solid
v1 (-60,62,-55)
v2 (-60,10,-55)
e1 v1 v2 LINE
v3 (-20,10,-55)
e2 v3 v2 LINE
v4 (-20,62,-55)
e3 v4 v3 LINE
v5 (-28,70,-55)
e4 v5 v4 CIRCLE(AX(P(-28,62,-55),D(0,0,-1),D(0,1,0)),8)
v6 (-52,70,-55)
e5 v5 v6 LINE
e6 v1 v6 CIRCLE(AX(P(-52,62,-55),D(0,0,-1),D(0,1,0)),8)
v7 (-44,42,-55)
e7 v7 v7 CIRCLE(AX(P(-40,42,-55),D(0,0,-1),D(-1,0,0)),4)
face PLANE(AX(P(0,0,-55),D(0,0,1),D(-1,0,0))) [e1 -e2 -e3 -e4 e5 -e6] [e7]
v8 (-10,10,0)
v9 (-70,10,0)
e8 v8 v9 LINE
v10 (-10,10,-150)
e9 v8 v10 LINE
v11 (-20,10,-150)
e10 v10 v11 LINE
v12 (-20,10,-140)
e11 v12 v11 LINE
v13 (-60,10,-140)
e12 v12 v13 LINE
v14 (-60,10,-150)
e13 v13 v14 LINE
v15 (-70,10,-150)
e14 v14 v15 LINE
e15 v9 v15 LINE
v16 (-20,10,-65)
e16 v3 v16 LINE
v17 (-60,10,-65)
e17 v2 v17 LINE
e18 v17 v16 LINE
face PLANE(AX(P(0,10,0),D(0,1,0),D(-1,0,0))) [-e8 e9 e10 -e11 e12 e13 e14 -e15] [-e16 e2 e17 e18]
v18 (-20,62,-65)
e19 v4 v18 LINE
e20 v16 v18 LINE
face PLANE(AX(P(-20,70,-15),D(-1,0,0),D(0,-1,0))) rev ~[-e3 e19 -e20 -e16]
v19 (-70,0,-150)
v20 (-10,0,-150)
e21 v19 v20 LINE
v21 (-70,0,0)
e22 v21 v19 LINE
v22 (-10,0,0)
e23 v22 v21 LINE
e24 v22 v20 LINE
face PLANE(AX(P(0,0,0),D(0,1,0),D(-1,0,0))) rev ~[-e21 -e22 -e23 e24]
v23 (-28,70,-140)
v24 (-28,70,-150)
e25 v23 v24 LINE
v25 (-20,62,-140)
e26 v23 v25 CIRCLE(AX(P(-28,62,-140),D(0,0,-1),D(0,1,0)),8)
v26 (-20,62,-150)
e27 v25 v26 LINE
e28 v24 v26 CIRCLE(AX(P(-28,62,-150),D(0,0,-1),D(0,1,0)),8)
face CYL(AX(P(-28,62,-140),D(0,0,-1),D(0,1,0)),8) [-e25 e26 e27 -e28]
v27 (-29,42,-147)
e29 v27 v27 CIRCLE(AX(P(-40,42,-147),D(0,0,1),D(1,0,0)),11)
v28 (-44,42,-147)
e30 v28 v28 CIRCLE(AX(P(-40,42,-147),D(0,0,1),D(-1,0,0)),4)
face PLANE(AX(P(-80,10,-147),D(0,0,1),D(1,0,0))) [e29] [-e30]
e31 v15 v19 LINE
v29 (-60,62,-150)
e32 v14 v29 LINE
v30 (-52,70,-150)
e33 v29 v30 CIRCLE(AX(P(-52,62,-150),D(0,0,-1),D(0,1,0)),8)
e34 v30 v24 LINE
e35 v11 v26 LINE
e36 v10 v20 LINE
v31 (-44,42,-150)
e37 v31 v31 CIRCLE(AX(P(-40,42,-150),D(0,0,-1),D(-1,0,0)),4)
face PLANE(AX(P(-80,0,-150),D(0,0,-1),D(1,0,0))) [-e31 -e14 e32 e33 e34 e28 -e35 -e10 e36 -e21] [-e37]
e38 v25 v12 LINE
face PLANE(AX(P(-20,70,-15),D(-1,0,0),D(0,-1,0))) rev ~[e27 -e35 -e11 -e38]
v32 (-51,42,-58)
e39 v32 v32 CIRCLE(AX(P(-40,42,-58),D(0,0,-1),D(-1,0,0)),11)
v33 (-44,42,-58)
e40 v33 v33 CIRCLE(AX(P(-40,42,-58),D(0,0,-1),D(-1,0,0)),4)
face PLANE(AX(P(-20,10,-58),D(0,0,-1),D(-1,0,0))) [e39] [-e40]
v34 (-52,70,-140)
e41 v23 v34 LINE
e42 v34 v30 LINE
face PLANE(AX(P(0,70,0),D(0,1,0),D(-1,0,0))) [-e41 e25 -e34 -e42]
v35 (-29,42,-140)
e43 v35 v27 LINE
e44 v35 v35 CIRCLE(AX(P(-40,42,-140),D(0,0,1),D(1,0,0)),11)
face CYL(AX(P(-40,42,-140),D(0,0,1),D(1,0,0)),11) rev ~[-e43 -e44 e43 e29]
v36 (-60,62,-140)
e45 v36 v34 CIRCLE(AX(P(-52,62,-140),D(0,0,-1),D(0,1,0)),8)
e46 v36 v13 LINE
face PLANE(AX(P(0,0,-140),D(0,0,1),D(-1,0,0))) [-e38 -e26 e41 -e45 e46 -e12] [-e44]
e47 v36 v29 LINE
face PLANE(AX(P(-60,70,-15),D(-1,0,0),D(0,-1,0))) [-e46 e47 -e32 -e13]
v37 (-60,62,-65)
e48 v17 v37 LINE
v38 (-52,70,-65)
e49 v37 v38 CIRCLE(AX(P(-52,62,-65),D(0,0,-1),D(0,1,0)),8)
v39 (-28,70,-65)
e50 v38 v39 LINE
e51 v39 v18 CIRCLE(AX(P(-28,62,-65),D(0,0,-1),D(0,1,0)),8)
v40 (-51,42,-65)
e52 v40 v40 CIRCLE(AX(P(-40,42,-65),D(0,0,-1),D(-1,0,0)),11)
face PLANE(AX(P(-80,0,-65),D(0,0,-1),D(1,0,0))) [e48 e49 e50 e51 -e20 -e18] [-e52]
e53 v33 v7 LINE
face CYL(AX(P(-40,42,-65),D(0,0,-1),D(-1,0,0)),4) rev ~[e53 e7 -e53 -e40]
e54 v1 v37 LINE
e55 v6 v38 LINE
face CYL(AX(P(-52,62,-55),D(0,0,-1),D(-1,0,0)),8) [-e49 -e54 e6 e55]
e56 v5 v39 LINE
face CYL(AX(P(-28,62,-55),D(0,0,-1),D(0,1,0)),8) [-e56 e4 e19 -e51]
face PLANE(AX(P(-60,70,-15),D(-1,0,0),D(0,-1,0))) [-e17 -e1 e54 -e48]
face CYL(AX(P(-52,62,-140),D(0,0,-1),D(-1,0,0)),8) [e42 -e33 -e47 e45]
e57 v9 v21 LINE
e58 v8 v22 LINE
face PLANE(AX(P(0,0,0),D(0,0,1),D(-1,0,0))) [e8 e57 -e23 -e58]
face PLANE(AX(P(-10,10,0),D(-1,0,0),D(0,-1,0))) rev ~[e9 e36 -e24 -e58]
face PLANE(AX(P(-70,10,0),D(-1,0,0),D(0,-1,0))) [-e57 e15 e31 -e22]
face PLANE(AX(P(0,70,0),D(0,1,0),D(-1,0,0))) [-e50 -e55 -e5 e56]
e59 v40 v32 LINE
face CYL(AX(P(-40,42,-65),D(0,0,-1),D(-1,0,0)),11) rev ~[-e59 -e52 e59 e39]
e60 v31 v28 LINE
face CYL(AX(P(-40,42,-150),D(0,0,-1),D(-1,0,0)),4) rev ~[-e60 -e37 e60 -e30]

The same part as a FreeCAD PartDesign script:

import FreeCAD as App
import Part
import Sketcher
from FreeCAD import Vector


def edges_at(feature, points):
    """Names of the edges that pass closest to the given points."""
    edges = feature.Shape.Edges
    near = lambda p: min(range(len(edges)), key=lambda i: edges[i].distToShape(Part.Vertex(*p))[0])
    return sorted({f"Edge{near(p) + 1}" for p in points})

doc = App.newDocument("Part")
body = doc.addObject("PartDesign::Body", "Body")
body.AllowCompound = True

# Sketch on XZ plane
sketch1 = body.newObject("Sketcher::SketchObject", "Sketch")
sketch1.AttachmentSupport = (doc.getObject("XZ_Plane"), [""])
sketch1.MapMode = "FlatFace"
sketch1.addGeometry(Part.LineSegment(Vector(-80, 0, 0), Vector(0, 0, 0)), False)
sketch1.addGeometry(Part.LineSegment(Vector(0, 0, 0), Vector(0, -15, 0)), False)
sketch1.addGeometry(Part.LineSegment(Vector(0, -15, 0), Vector(-80, -15, 0)), False)
sketch1.addGeometry(Part.LineSegment(Vector(-80, -15, 0), Vector(-80, 0, 0)), False)
sketch1.addGeometry(Part.LineSegment(Vector(-80, -25, 0), Vector(0, -25, 0)), False)
sketch1.addGeometry(Part.LineSegment(Vector(0, -25, 0), Vector(0, -55, 0)), False)
sketch1.addGeometry(Part.LineSegment(Vector(0, -55, 0), Vector(-80, -55, 0)), False)
sketch1.addGeometry(Part.LineSegment(Vector(-80, -55, 0), Vector(-80, -25, 0)), False)
sketch1.addGeometry(Part.LineSegment(Vector(-80, -65, 0), Vector(0, -65, 0)), False)
sketch1.addGeometry(Part.LineSegment(Vector(0, -65, 0), Vector(0, -140, 0)), False)
sketch1.addGeometry(Part.LineSegment(Vector(0, -140, 0), Vector(-80, -140, 0)), False)
sketch1.addGeometry(Part.LineSegment(Vector(-80, -140, 0), Vector(-80, -65, 0)), False)
sketch1.addConstraint(Sketcher.Constraint("Coincident", 0, 2, 1, 1))
sketch1.addConstraint(Sketcher.Constraint("Coincident", 1, 2, 2, 1))
sketch1.addConstraint(Sketcher.Constraint("Coincident", 2, 2, 3, 1))
sketch1.addConstraint(Sketcher.Constraint("Coincident", 3, 2, 0, 1))
sketch1.addConstraint(Sketcher.Constraint("Coincident", 4, 2, 5, 1))
sketch1.addConstraint(Sketcher.Constraint("Coincident", 5, 2, 6, 1))
sketch1.addConstraint(Sketcher.Constraint("Coincident", 6, 2, 7, 1))
sketch1.addConstraint(Sketcher.Constraint("Coincident", 7, 2, 4, 1))
sketch1.addConstraint(Sketcher.Constraint("Coincident", 8, 2, 9, 1))
sketch1.addConstraint(Sketcher.Constraint("Coincident", 9, 2, 10, 1))
sketch1.addConstraint(Sketcher.Constraint("Coincident", 10, 2, 11, 1))
sketch1.addConstraint(Sketcher.Constraint("Coincident", 11, 2, 8, 1))
sketch1.addConstraint(Sketcher.Constraint("Horizontal", 0))
sketch1.addConstraint(Sketcher.Constraint("Vertical", 1))
sketch1.addConstraint(Sketcher.Constraint("Horizontal", 2))
sketch1.addConstraint(Sketcher.Constraint("Vertical", 3))
sketch1.addConstraint(Sketcher.Constraint("Horizontal", 4))
sketch1.addConstraint(Sketcher.Constraint("Vertical", 5))
sketch1.addConstraint(Sketcher.Constraint("Horizontal", 6))
sketch1.addConstraint(Sketcher.Constraint("Vertical", 7))
sketch1.addConstraint(Sketcher.Constraint("Horizontal", 8))
sketch1.addConstraint(Sketcher.Constraint("Vertical", 9))
sketch1.addConstraint(Sketcher.Constraint("Horizontal", 10))
sketch1.addConstraint(Sketcher.Constraint("Vertical", 11))
sketch1.addConstraint(Sketcher.Constraint("Coincident", 0, 2, -1, 1))
sketch1.addConstraint(Sketcher.Constraint("PointOnObject", 4, 2, -2))
sketch1.addConstraint(Sketcher.Constraint("PointOnObject", 8, 2, -2))
sketch1.addConstraint(Sketcher.Constraint("Vertical", 3, 2, 6, 2))
sketch1.addConstraint(Sketcher.Constraint("Vertical", 7, 2, 10, 2))
sketch1.addConstraint(Sketcher.Constraint("DistanceX", 0, 1, 0, 2, 80.0))
sketch1.addConstraint(Sketcher.Constraint("DistanceY", 5, 2, 5, 1, 30.0))
sketch1.addConstraint(Sketcher.Constraint("DistanceY", 9, 2, 9, 1, 75.0))
sketch1.addConstraint(Sketcher.Constraint("DistanceY", 4, 2, 1, 2, 10.0))
sketch1.addConstraint(Sketcher.Constraint("DistanceY", 8, 2, 5, 2, 10.0))
sketch1.addConstraint(Sketcher.Constraint("DistanceY", 1, 2, 1, 1, 15.0))
pad1 = body.newObject("PartDesign::Pad", "Pad")
pad1.Profile = sketch1
pad1.Length = 10
pad1.Reversed = True

# Sketch on XZ plane
sketch2 = body.newObject("Sketcher::SketchObject", "Sketch001")
sketch2.AttachmentSupport = (doc.getObject("XZ_Plane"), [""])
sketch2.MapMode = "FlatFace"
sketch2.addGeometry(Part.LineSegment(Vector(-80, -15, 0), Vector(0, -15, 0)), False)
sketch2.addGeometry(Part.LineSegment(Vector(0, -15, 0), Vector(0, -25, 0)), False)
sketch2.addGeometry(Part.LineSegment(Vector(0, -25, 0), Vector(-80, -25, 0)), False)
sketch2.addGeometry(Part.LineSegment(Vector(-80, -25, 0), Vector(-80, -15, 0)), False)
sketch2.addGeometry(Part.LineSegment(Vector(-80, -55, 0), Vector(0, -55, 0)), False)
sketch2.addGeometry(Part.LineSegment(Vector(0, -55, 0), Vector(0, -65, 0)), False)
sketch2.addGeometry(Part.LineSegment(Vector(0, -65, 0), Vector(-80, -65, 0)), False)
sketch2.addGeometry(Part.LineSegment(Vector(-80, -65, 0), Vector(-80, -55, 0)), False)
sketch2.addGeometry(Part.LineSegment(Vector(-80, -140, 0), Vector(0, -140, 0)), False)
sketch2.addGeometry(Part.LineSegment(Vector(0, -140, 0), Vector(0, -150, 0)), False)
sketch2.addGeometry(Part.LineSegment(Vector(0, -150, 0), Vector(-80, -150, 0)), False)
sketch2.addGeometry(Part.LineSegment(Vector(-80, -150, 0), Vector(-80, -140, 0)), False)
sketch2.addConstraint(Sketcher.Constraint("Coincident", 0, 2, 1, 1))
sketch2.addConstraint(Sketcher.Constraint("Coincident", 1, 2, 2, 1))
sketch2.addConstraint(Sketcher.Constraint("Coincident", 2, 2, 3, 1))
sketch2.addConstraint(Sketcher.Constraint("Coincident", 3, 2, 0, 1))
sketch2.addConstraint(Sketcher.Constraint("Coincident", 4, 2, 5, 1))
sketch2.addConstraint(Sketcher.Constraint("Coincident", 5, 2, 6, 1))
sketch2.addConstraint(Sketcher.Constraint("Coincident", 6, 2, 7, 1))
sketch2.addConstraint(Sketcher.Constraint("Coincident", 7, 2, 4, 1))
sketch2.addConstraint(Sketcher.Constraint("Coincident", 8, 2, 9, 1))
sketch2.addConstraint(Sketcher.Constraint("Coincident", 9, 2, 10, 1))
sketch2.addConstraint(Sketcher.Constraint("Coincident", 10, 2, 11, 1))
sketch2.addConstraint(Sketcher.Constraint("Coincident", 11, 2, 8, 1))
sketch2.addConstraint(Sketcher.Constraint("Horizontal", 0))
sketch2.addConstraint(Sketcher.Constraint("Vertical", 1))
sketch2.addConstraint(Sketcher.Constraint("Horizontal", 2))
sketch2.addConstraint(Sketcher.Constraint("Vertical", 3))
sketch2.addConstraint(Sketcher.Constraint("Horizontal", 4))
sketch2.addConstraint(Sketcher.Constraint("Vertical", 5))
sketch2.addConstraint(Sketcher.Constraint("Horizontal", 6))
sketch2.addConstraint(Sketcher.Constraint("Vertical", 7))
sketch2.addConstraint(Sketcher.Constraint("Horizontal", 8))
sketch2.addConstraint(Sketcher.Constraint("Vertical", 9))
sketch2.addConstraint(Sketcher.Constraint("Horizontal", 10))
sketch2.addConstraint(Sketcher.Constraint("Vertical", 11))
sketch2.addConstraint(Sketcher.Constraint("PointOnObject", 0, 2, -2))
sketch2.addConstraint(Sketcher.Constraint("PointOnObject", 4, 2, -2))
sketch2.addConstraint(Sketcher.Constraint("PointOnObject", 8, 2, -2))
sketch2.addConstraint(Sketcher.Constraint("Vertical", 3, 2, 6, 2))
sketch2.addConstraint(Sketcher.Constraint("Vertical", 7, 2, 10, 2))
sketch2.addConstraint(Sketcher.Constraint("Equal", 3, 5))
sketch2.addConstraint(Sketcher.Constraint("Equal", 7, 9))
sketch2.addConstraint(Sketcher.Constraint("DistanceX", 0, 1, 0, 2, 80.0))
sketch2.addConstraint(Sketcher.Constraint("DistanceY", 1, 2, 1, 1, 10.0))
sketch2.addConstraint(Sketcher.Constraint("DistanceY", 9, 2, -1, 1, 150.0))
sketch2.addConstraint(Sketcher.Constraint("DistanceY", 4, 2, 1, 2, 30.0))
sketch2.addConstraint(Sketcher.Constraint("DistanceY", 8, 2, 5, 2, 75.0))
pad2 = body.newObject("PartDesign::Pad", "Pad001")
pad2.Profile = sketch2
pad2.Length = 70
pad2.Reversed = True

# Sketch on XY plane
sketch3 = body.newObject("Sketcher::SketchObject", "Sketch002")
sketch3.AttachmentSupport = (doc.getObject("XY_Plane"), [""])
sketch3.MapMode = "FlatFace"
sketch3.AttachmentOffset = App.Placement(Vector(0, 0, -150), App.Rotation())
sketch3.addGeometry(Part.Circle(Vector(-40, 42, 0), Vector(0, 0, 1), 4), False)
sketch3.addConstraint(Sketcher.Constraint("Diameter", 0, 8.0))
sketch3.addConstraint(Sketcher.Constraint("DistanceX", 0, 3, -1, 1, 40.0))
sketch3.addConstraint(Sketcher.Constraint("DistanceY", -1, 1, 0, 3, 42.0))
pocket1 = body.newObject("PartDesign::Pocket", "Pocket")
pocket1.Profile = sketch3
pocket1.Length = 10
pocket1.Reversed = True

# Sketch on XY plane
sketch4 = body.newObject("Sketcher::SketchObject", "Sketch003")
sketch4.AttachmentSupport = (doc.getObject("XY_Plane"), [""])
sketch4.MapMode = "FlatFace"
sketch4.AttachmentOffset = App.Placement(Vector(0, 0, -15), App.Rotation())
sketch4.addGeometry(Part.Circle(Vector(-40, 42, 0), Vector(0, 0, 1), 4), False)
sketch4.addConstraint(Sketcher.Constraint("Diameter", 0, 8.0))
sketch4.addConstraint(Sketcher.Constraint("DistanceX", 0, 3, -1, 1, 40.0))
sketch4.addConstraint(Sketcher.Constraint("DistanceY", -1, 1, 0, 3, 42.0))
pocket2 = body.newObject("PartDesign::Pocket", "Pocket001")
pocket2.Profile = sketch4
pocket2.Length = 10

# Sketch on XY plane
sketch5 = body.newObject("Sketcher::SketchObject", "Sketch004")
sketch5.AttachmentSupport = (doc.getObject("XY_Plane"), [""])
sketch5.MapMode = "FlatFace"
sketch5.AttachmentOffset = App.Placement(Vector(0, 0, -15), App.Rotation())
sketch5.addGeometry(Part.Circle(Vector(-40, 42, 0), Vector(0, 0, 1), 12.5), False)
sketch5.addGeometry(Part.Circle(Vector(-40, 42, 0), Vector(0, 0, 1), 4), False)
sketch5.addConstraint(Sketcher.Constraint("Coincident", 1, 3, 0, 3))
sketch5.addConstraint(Sketcher.Constraint("Diameter", 0, 25.0))
sketch5.addConstraint(Sketcher.Constraint("Diameter", 1, 8.0))
sketch5.addConstraint(Sketcher.Constraint("DistanceX", 0, 3, -1, 1, 40.0))
sketch5.addConstraint(Sketcher.Constraint("DistanceY", -1, 1, 0, 3, 42.0))
pocket3 = body.newObject("PartDesign::Pocket", "Pocket002")
pocket3.Profile = sketch5
pocket3.Length = 8

# Sketch on XY plane
sketch6 = body.newObject("Sketcher::SketchObject", "Sketch005")
sketch6.AttachmentSupport = (doc.getObject("XY_Plane"), [""])
sketch6.MapMode = "FlatFace"
sketch6.AttachmentOffset = App.Placement(Vector(0, 0, -65), App.Rotation())
sketch6.addGeometry(Part.Circle(Vector(-40, 42, 0), Vector(0, 0, 1), 4), False)
sketch6.addConstraint(Sketcher.Constraint("Diameter", 0, 8.0))
sketch6.addConstraint(Sketcher.Constraint("DistanceX", 0, 3, -1, 1, 40.0))
sketch6.addConstraint(Sketcher.Constraint("DistanceY", -1, 1, 0, 3, 42.0))
pocket4 = body.newObject("PartDesign::Pocket", "Pocket003")
pocket4.Profile = sketch6
pocket4.Length = 10
pocket4.Reversed = True

# Sketch on XY plane
sketch7 = body.newObject("Sketcher::SketchObject", "Sketch006")
sketch7.AttachmentSupport = (doc.getObject("XY_Plane"), [""])
sketch7.MapMode = "FlatFace"
sketch7.AttachmentOffset = App.Placement(Vector(0, 0, -140), App.Rotation())
sketch7.addGeometry(Part.Circle(Vector(-40, 42, 0), Vector(0, 0, 1), 11), False)
sketch7.addGeometry(Part.Circle(Vector(-40, 42, 0), Vector(0, 0, 1), 4), False)
sketch7.addConstraint(Sketcher.Constraint("Coincident", 1, 3, 0, 3))
sketch7.addConstraint(Sketcher.Constraint("Diameter", 0, 22.0))
sketch7.addConstraint(Sketcher.Constraint("Diameter", 1, 8.0))
sketch7.addConstraint(Sketcher.Constraint("DistanceX", 0, 3, -1, 1, 40.0))
sketch7.addConstraint(Sketcher.Constraint("DistanceY", -1, 1, 0, 3, 42.0))
pocket5 = body.newObject("PartDesign::Pocket", "Pocket004")
pocket5.Profile = sketch7
pocket5.Length = 7

# Sketch on XY plane
sketch8 = body.newObject("Sketcher::SketchObject", "Sketch007")
sketch8.AttachmentSupport = (doc.getObject("XY_Plane"), [""])
sketch8.MapMode = "FlatFace"
sketch8.AttachmentOffset = App.Placement(Vector(0, 0, -15), App.Rotation())
sketch8.addGeometry(Part.LineSegment(Vector(-20, 70, 0), Vector(-20, 10, 0)), False)
sketch8.addGeometry(Part.LineSegment(Vector(-20, 10, 0), Vector(0, 10, 0)), False)
sketch8.addGeometry(Part.LineSegment(Vector(0, 10, 0), Vector(0, 70, 0)), False)
sketch8.addGeometry(Part.LineSegment(Vector(0, 70, 0), Vector(-20, 70, 0)), False)
sketch8.addGeometry(Part.LineSegment(Vector(-80, 70, 0), Vector(-80, 10, 0)), False)
sketch8.addGeometry(Part.LineSegment(Vector(-80, 10, 0), Vector(-60, 10, 0)), False)
sketch8.addGeometry(Part.LineSegment(Vector(-60, 10, 0), Vector(-60, 70, 0)), False)
sketch8.addGeometry(Part.LineSegment(Vector(-60, 70, 0), Vector(-80, 70, 0)), False)
sketch8.addConstraint(Sketcher.Constraint("Coincident", 0, 2, 1, 1))
sketch8.addConstraint(Sketcher.Constraint("Coincident", 1, 2, 2, 1))
sketch8.addConstraint(Sketcher.Constraint("Coincident", 2, 2, 3, 1))
sketch8.addConstraint(Sketcher.Constraint("Coincident", 3, 2, 0, 1))
sketch8.addConstraint(Sketcher.Constraint("Coincident", 4, 2, 5, 1))
sketch8.addConstraint(Sketcher.Constraint("Coincident", 5, 2, 6, 1))
sketch8.addConstraint(Sketcher.Constraint("Coincident", 6, 2, 7, 1))
sketch8.addConstraint(Sketcher.Constraint("Coincident", 7, 2, 4, 1))
sketch8.addConstraint(Sketcher.Constraint("Vertical", 0))
sketch8.addConstraint(Sketcher.Constraint("Horizontal", 1))
sketch8.addConstraint(Sketcher.Constraint("Vertical", 2))
sketch8.addConstraint(Sketcher.Constraint("Horizontal", 3))
sketch8.addConstraint(Sketcher.Constraint("Vertical", 4))
sketch8.addConstraint(Sketcher.Constraint("Horizontal", 5))
sketch8.addConstraint(Sketcher.Constraint("Vertical", 6))
sketch8.addConstraint(Sketcher.Constraint("Horizontal", 7))
sketch8.addConstraint(Sketcher.Constraint("PointOnObject", 1, 2, -2))
sketch8.addConstraint(Sketcher.Constraint("Horizontal", 1, 2, 4, 2))
sketch8.addConstraint(Sketcher.Constraint("Horizontal", 3, 2, 6, 2))
sketch8.addConstraint(Sketcher.Constraint("Equal", 3, 5))
sketch8.addConstraint(Sketcher.Constraint("DistanceX", 1, 1, 1, 2, 20.0))
sketch8.addConstraint(Sketcher.Constraint("DistanceY", 0, 2, 0, 1, 60.0))
sketch8.addConstraint(Sketcher.Constraint("DistanceY", -1, 1, 0, 2, 10.0))
sketch8.addConstraint(Sketcher.Constraint("DistanceX", 4, 2, -1, 1, 80.0))
pocket6 = body.newObject("PartDesign::Pocket", "Pocket005")
pocket6.Profile = sketch8
pocket6.Length = 150
doc.recompute()

fillet = body.newObject("PartDesign::Fillet", "Fillet")
fillet.Base = (pocket6, edges_at(pocket6, [(-20, 70, -20)]))
fillet.Radius = 8
doc.recompute()

fillet2 = body.newObject("PartDesign::Fillet", "Fillet001")
fillet2.Base = (fillet, edges_at(fillet, [(-60, 70, -20)]))
fillet2.Radius = 8
doc.recompute()

fillet3 = body.newObject("PartDesign::Fillet", "Fillet002")
fillet3.Base = (fillet2, edges_at(fillet2, [(-60, 70, -60)]))
fillet3.Radius = 8
doc.recompute()

fillet4 = body.newObject("PartDesign::Fillet", "Fillet003")
fillet4.Base = (fillet3, edges_at(fillet3, [(-20, 70, -60)]))
fillet4.Radius = 8
doc.recompute()

fillet5 = body.newObject("PartDesign::Fillet", "Fillet004")
fillet5.Base = (fillet4, edges_at(fillet4, [(-60, 70, -145)]))
fillet5.Radius = 8
doc.recompute()

fillet6 = body.newObject("PartDesign::Fillet", "Fillet005")
fillet6.Base = (fillet5, edges_at(fillet5, [(-20, 70, -145)]))
fillet6.Radius = 8

# Sketch on XY plane
sketch9 = body.newObject("Sketcher::SketchObject", "Sketch008")
sketch9.AttachmentSupport = (doc.getObject("XY_Plane"), [""])
sketch9.MapMode = "FlatFace"
sketch9.AttachmentOffset = App.Placement(Vector(0, 0, -65), App.Rotation())
sketch9.addGeometry(Part.Circle(Vector(-40, 42, 0), Vector(0, 0, 1), 11), False)
sketch9.addConstraint(Sketcher.Constraint("Diameter", 0, 22.0))
sketch9.addConstraint(Sketcher.Constraint("DistanceX", 0, 3, -1, 1, 40.0))
sketch9.addConstraint(Sketcher.Constraint("DistanceY", -1, 1, 0, 3, 42.0))
pocket7 = body.newObject("PartDesign::Pocket", "Pocket006")
pocket7.Profile = sketch9
pocket7.Length = 7
pocket7.Reversed = True

# Sketch on XY plane
sketch10 = body.newObject("Sketcher::SketchObject", "Sketch009")
sketch10.AttachmentSupport = (doc.getObject("XY_Plane"), [""])
sketch10.MapMode = "FlatFace"
sketch10.addGeometry(Part.LineSegment(Vector(-80, 10, 0), Vector(-80, 0, 0)), False)
sketch10.addGeometry(Part.LineSegment(Vector(-80, 0, 0), Vector(-70, 0, 0)), False)
sketch10.addGeometry(Part.LineSegment(Vector(-70, 0, 0), Vector(-70, 10, 0)), False)
sketch10.addGeometry(Part.LineSegment(Vector(-70, 10, 0), Vector(-80, 10, 0)), False)
sketch10.addGeometry(Part.LineSegment(Vector(-10, 10, 0), Vector(-10, 0, 0)), False)
sketch10.addGeometry(Part.LineSegment(Vector(-10, 0, 0), Vector(0, 0, 0)), False)
sketch10.addGeometry(Part.LineSegment(Vector(0, 0, 0), Vector(0, 10, 0)), False)
sketch10.addGeometry(Part.LineSegment(Vector(0, 10, 0), Vector(-10, 10, 0)), False)
sketch10.addConstraint(Sketcher.Constraint("Coincident", 0, 2, 1, 1))
sketch10.addConstraint(Sketcher.Constraint("Coincident", 1, 2, 2, 1))
sketch10.addConstraint(Sketcher.Constraint("Coincident", 2, 2, 3, 1))
sketch10.addConstraint(Sketcher.Constraint("Coincident", 3, 2, 0, 1))
sketch10.addConstraint(Sketcher.Constraint("Coincident", 4, 2, 5, 1))
sketch10.addConstraint(Sketcher.Constraint("Coincident", 5, 2, 6, 1))
sketch10.addConstraint(Sketcher.Constraint("Coincident", 6, 2, 7, 1))
sketch10.addConstraint(Sketcher.Constraint("Coincident", 7, 2, 4, 1))
sketch10.addConstraint(Sketcher.Constraint("Vertical", 0))
sketch10.addConstraint(Sketcher.Constraint("Horizontal", 1))
sketch10.addConstraint(Sketcher.Constraint("Vertical", 2))
sketch10.addConstraint(Sketcher.Constraint("Horizontal", 3))
sketch10.addConstraint(Sketcher.Constraint("Vertical", 4))
sketch10.addConstraint(Sketcher.Constraint("Horizontal", 5))
sketch10.addConstraint(Sketcher.Constraint("Vertical", 6))
sketch10.addConstraint(Sketcher.Constraint("Horizontal", 7))
sketch10.addConstraint(Sketcher.Constraint("Coincident", 5, 2, -1, 1))
sketch10.addConstraint(Sketcher.Constraint("PointOnObject", 0, 2, -1))
sketch10.addConstraint(Sketcher.Constraint("Horizontal", 3, 2, 6, 2))
sketch10.addConstraint(Sketcher.Constraint("Equal", 3, 5))
sketch10.addConstraint(Sketcher.Constraint("Equal", 7, 0))
sketch10.addConstraint(Sketcher.Constraint("DistanceX", 1, 1, 1, 2, 10.0))
sketch10.addConstraint(Sketcher.Constraint("DistanceX", 0, 2, -1, 1, 80.0))
pocket8 = body.newObject("PartDesign::Pocket", "Pocket007")
pocket8.Profile = sketch10
pocket8.Length = 150

# Sketch on XY plane
sketch11 = body.newObject("Sketcher::SketchObject", "Sketch010")
sketch11.AttachmentSupport = (doc.getObject("XY_Plane"), [""])
sketch11.MapMode = "FlatFace"
sketch11.AttachmentOffset = App.Placement(Vector(0, 0, -15), App.Rotation())
sketch11.addGeometry(Part.LineSegment(Vector(-60, 70, 0), Vector(-60, 10, 0)), False)
sketch11.addGeometry(Part.LineSegment(Vector(-60, 10, 0), Vector(-20, 10, 0)), False)
sketch11.addGeometry(Part.LineSegment(Vector(-20, 10, 0), Vector(-20, 70, 0)), False)
sketch11.addGeometry(Part.LineSegment(Vector(-20, 70, 0), Vector(-60, 70, 0)), False)
sketch11.addConstraint(Sketcher.Constraint("Coincident", 0, 2, 1, 1))
sketch11.addConstraint(Sketcher.Constraint("Coincident", 1, 2, 2, 1))
sketch11.addConstraint(Sketcher.Constraint("Coincident", 2, 2, 3, 1))
sketch11.addConstraint(Sketcher.Constraint("Coincident", 3, 2, 0, 1))
sketch11.addConstraint(Sketcher.Constraint("Vertical", 0))
sketch11.addConstraint(Sketcher.Constraint("Horizontal", 1))
sketch11.addConstraint(Sketcher.Constraint("Vertical", 2))
sketch11.addConstraint(Sketcher.Constraint("Horizontal", 3))
sketch11.addConstraint(Sketcher.Constraint("DistanceX", 1, 1, 1, 2, 40.0))
sketch11.addConstraint(Sketcher.Constraint("DistanceY", 0, 2, 0, 1, 60.0))
sketch11.addConstraint(Sketcher.Constraint("DistanceX", 0, 2, -1, 1, 60.0))
sketch11.addConstraint(Sketcher.Constraint("DistanceY", -1, 1, 0, 2, 10.0))
pocket9 = body.newObject("PartDesign::Pocket", "Pocket008")
pocket9.Profile = sketch11
pocket9.Length = 10

doc.recompute()
